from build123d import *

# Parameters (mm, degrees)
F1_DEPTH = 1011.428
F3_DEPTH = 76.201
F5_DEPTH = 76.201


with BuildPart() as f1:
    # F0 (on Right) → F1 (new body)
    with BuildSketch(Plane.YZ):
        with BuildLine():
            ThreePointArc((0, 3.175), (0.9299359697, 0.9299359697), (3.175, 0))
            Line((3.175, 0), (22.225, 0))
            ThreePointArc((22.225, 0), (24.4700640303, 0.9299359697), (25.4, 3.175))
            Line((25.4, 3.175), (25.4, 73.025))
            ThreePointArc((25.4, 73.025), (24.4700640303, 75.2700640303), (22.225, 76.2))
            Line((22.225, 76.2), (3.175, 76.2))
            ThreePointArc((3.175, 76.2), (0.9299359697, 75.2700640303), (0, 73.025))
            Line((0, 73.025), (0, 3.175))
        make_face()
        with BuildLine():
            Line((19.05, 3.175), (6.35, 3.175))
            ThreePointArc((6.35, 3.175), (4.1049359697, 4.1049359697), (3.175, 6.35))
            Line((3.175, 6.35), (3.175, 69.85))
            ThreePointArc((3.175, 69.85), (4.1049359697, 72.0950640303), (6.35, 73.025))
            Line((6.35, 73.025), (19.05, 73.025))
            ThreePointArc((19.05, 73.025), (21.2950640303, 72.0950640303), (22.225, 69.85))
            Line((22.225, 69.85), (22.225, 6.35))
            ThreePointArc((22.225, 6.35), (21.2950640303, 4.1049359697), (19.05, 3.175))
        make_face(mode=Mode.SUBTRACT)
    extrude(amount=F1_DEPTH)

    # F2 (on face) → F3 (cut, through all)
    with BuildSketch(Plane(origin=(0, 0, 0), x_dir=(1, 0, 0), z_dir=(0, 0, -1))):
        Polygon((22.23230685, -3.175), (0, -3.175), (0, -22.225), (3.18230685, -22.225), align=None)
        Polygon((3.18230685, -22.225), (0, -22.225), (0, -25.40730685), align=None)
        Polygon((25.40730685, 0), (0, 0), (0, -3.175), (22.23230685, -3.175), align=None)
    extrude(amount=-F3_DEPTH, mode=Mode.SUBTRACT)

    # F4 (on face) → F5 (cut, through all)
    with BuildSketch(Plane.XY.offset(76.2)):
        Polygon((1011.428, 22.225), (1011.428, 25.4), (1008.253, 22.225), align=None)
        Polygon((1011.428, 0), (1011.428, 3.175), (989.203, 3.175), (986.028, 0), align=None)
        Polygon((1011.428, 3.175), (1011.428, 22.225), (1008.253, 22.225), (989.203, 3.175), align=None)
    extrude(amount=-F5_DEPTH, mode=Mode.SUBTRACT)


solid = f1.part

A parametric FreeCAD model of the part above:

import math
import FreeCAD as App
import Part
import Sketcher
from FreeCAD import Vector
Q = App.Units.Quantity

doc = App.newDocument("Part")
body = doc.addObject("PartDesign::Body", "Body")

sketch1 = body.newObject("Sketcher::SketchObject", "Sketch")
sketch1.AttachmentSupport = (doc.getObject("YZ_Plane"), [""])
sketch1.MapMode = "FlatFace"
sketch1.addGeometry(Part.ArcOfCircle(Part.Circle(Vector(3.2, 3.2, 0), Vector(0, 0, 1), 3.2), math.radians(180), math.radians(270)), False)
sketch1.addGeometry(Part.LineSegment(Vector(3.2, 0, 0), Vector(22.2, 0, 0)), False)
sketch1.addGeometry(Part.ArcOfCircle(Part.Circle(Vector(22.2, 3.2, 0), Vector(0, 0, 1), 3.2), math.radians(-90), math.radians(0)), False)
sketch1.addGeometry(Part.LineSegment(Vector(25.4, 3.2, 0), Vector(25.4, 73, 0)), False)
sketch1.addGeometry(Part.ArcOfCircle(Part.Circle(Vector(22.2, 73, 0), Vector(0, 0, 1), 3.2), math.radians(0), math.radians(90)), False)
sketch1.addGeometry(Part.LineSegment(Vector(22.2, 76.2, 0), Vector(3.2, 76.2, 0)), False)
sketch1.addGeometry(Part.ArcOfCircle(Part.Circle(Vector(3.2, 73, 0), Vector(0, 0, 1), 3.2), math.radians(90), math.radians(180)), False)
sketch1.addGeometry(Part.LineSegment(Vector(0, 73, 0), Vector(0, 3.2, 0)), False)
sketch1.addGeometry(Part.ArcOfCircle(Part.Circle(Vector(19.1, 6.3, 0), Vector(0, 0, 1), 3.2), math.radians(-90), math.radians(0)), False)
sketch1.addGeometry(Part.LineSegment(Vector(19.1, 3.2, 0), Vector(6.3, 3.2, 0)), False)
sketch1.addGeometry(Part.ArcOfCircle(Part.Circle(Vector(6.3, 6.3, 0), Vector(0, 0, 1), 3.2), math.radians(180), math.radians(270)), False)
sketch1.addGeometry(Part.LineSegment(Vector(3.2, 6.3, 0), Vector(3.2, 69.8, 0)), False)
sketch1.addGeometry(Part.ArcOfCircle(Part.Circle(Vector(6.3, 69.8, 0), Vector(0, 0, 1), 3.2), math.radians(90), math.radians(180)), False)
sketch1.addGeometry(Part.LineSegment(Vector(6.3, 73, 0), Vector(19.1, 73, 0)), False)
sketch1.addGeometry(Part.ArcOfCircle(Part.Circle(Vector(19.1, 69.8, 0), Vector(0, 0, 1), 3.2), math.radians(0), math.radians(90)), False)
sketch1.addGeometry(Part.LineSegment(Vector(22.2, 69.8, 0), Vector(22.2, 6.3, 0)), False)
sketch1.addConstraint(Sketcher.Constraint("Tangent", 0, 2, 1, 1))
sketch1.addConstraint(Sketcher.Constraint("Tangent", 1, 2, 2, 1))
sketch1.addConstraint(Sketcher.Constraint("Tangent", 2, 2, 3, 1))
sketch1.addConstraint(Sketcher.Constraint("Tangent", 3, 2, 4, 1))
sketch1.addConstraint(Sketcher.Constraint("Tangent", 4, 2, 5, 1))
sketch1.addConstraint(Sketcher.Constraint("Tangent", 5, 2, 6, 1))
sketch1.addConstraint(Sketcher.Constraint("Tangent", 6, 2, 7, 1))
sketch1.addConstraint(Sketcher.Constraint("Tangent", 7, 2, 0, 1))
sketch1.addConstraint(Sketcher.Constraint("Tangent", 8, 1, 9, 1))
sketch1.addConstraint(Sketcher.Constraint("Tangent", 9, 2, 10, 2))
sketch1.addConstraint(Sketcher.Constraint("Tangent", 10, 1, 11, 1))
sketch1.addConstraint(Sketcher.Constraint("Tangent", 11, 2, 12, 2))
sketch1.addConstraint(Sketcher.Constraint("Tangent", 12, 1, 13, 1))
sketch1.addConstraint(Sketcher.Constraint("Tangent", 13, 2, 14, 2))
sketch1.addConstraint(Sketcher.Constraint("Tangent", 14, 1, 15, 1))
sketch1.addConstraint(Sketcher.Constraint("Tangent", 15, 2, 8, 2))
sketch1.addConstraint(Sketcher.Constraint("Horizontal", 1))
sketch1.addConstraint(Sketcher.Constraint("Vertical", 3))
sketch1.addConstraint(Sketcher.Constraint("Horizontal", 5))
sketch1.addConstraint(Sketcher.Constraint("Vertical", 7))
sketch1.addConstraint(Sketcher.Constraint("Horizontal", 9))
sketch1.addConstraint(Sketcher.Constraint("Vertical", 11))
sketch1.addConstraint(Sketcher.Constraint("Horizontal", 13))
sketch1.addConstraint(Sketcher.Constraint("Vertical", 15))
sketch1.addConstraint(Sketcher.Constraint("Equal", 0, 2))
sketch1.addConstraint(Sketcher.Constraint("Equal", 2, 4))
sketch1.addConstraint(Sketcher.Constraint("Equal", 4, 6))
sketch1.addConstraint(Sketcher.Constraint("Equal", 6, 8))
sketch1.addConstraint(Sketcher.Constraint("Equal", 8, 10))
sketch1.addConstraint(Sketcher.Constraint("Equal", 10, 12))
sketch1.addConstraint(Sketcher.Constraint("Equal", 12, 14))
sketch1.addConstraint(Sketcher.Constraint("PointOnObject", 0, 2, -1))
sketch1.addConstraint(Sketcher.Constraint("PointOnObject", 6, 2, -2))
sketch1.addConstraint(Sketcher.Constraint("Horizontal", 7, 2, 8, 1))
sketch1.addConstraint(Sketcher.Constraint("Horizontal", 6, 2, 12, 1))
sketch1.addConstraint(Sketcher.Constraint("Vertical", 5, 2, 10, 1))
sketch1.addConstraint(Sketcher.Constraint("Vertical", 4, 2, 14, 1))
sketch1.addConstraint(Sketcher.Constraint("DistanceX", 9, 2, 9, 1, Q("0.5 in")))
sketch1.addConstraint(Sketcher.Constraint("DistanceY", 11, 1, 11, 2, Q("2.5 in")))
sketch1.addConstraint(Sketcher.Constraint("DistanceX", -1, 1, 2, 2, Q("1 in")))
pad1 = body.newObject("PartDesign::Pad", "Pad")
pad1.Profile = sketch1
pad1.Length = Q("39.82 in")

sketch2 = body.newObject("Sketcher::SketchObject", "Sketch001")
sketch2.AttachmentSupport = (doc.getObject("XY_Plane"), [""])
sketch2.MapMode = "FlatFace"
sketch2.addGeometry(Part.LineSegment(Vector(0, 25, 0), Vector(25, 0, 0)), False)
sketch2.addGeometry(Part.LineSegment(Vector(25, 0, 0), Vector(0, 0, 0)), False)
sketch2.addGeometry(Part.LineSegment(Vector(0, 0, 0), Vector(0, 25, 0)), False)
sketch2.addConstraint(Sketcher.Constraint("Coincident", 0, 2, 1, 1))
sketch2.addConstraint(Sketcher.Constraint("Coincident", 1, 2, 2, 1))
sketch2.addConstraint(Sketcher.Constraint("Coincident", 2, 2, 0, 1))
sketch2.addConstraint(Sketcher.Constraint("Horizontal", 1))
sketch2.addConstraint(Sketcher.Constraint("Vertical", 2))
sketch2.addConstraint(Sketcher.Constraint("Coincident", 1, 2, -1, 1))
sketch2.addConstraint(Sketcher.Constraint("Equal", 1, 2))
sketch2.addConstraint(Sketcher.Constraint("DistanceX", 1, 2, 1, 1, 25.407307))
pocket1 = body.newObject("PartDesign::Pocket", "Pocket")
pocket1.Profile = sketch2
pocket1.Type = "ThroughAll"
pocket1.Reversed = True

sketch3 = body.newObject("Sketcher::SketchObject", "Sketch002")
sketch3.AttachmentSupport = (doc.getObject("XY_Plane"), [""])
sketch3.MapMode = "FlatFace"
sketch3.AttachmentOffset = App.Placement(Vector(0, 0, 3 * 25.4), App.Rotation())
sketch3.addGeometry(Part.LineSegment(Vector(1011, 25, 0), Vector(986, 0, 0)), False)
sketch3.addGeometry(Part.LineSegment(Vector(986, 0, 0), Vector(1011, 0, 0)), False)
sketch3.addGeometry(Part.LineSegment(Vector(1011, 0, 0), Vector(1011, 25, 0)), False)
sketch3.addConstraint(Sketcher.Constraint("Coincident", 0, 2, 1, 1))
sketch3.addConstraint(Sketcher.Constraint("Coincident", 1, 2, 2, 1))
sketch3.addConstraint(Sketcher.Constraint("Coincident", 2, 2, 0, 1))
sketch3.addConstraint(Sketcher.Constraint("Horizontal", 1))
sketch3.addConstraint(Sketcher.Constraint("Vertical", 2))
sketch3.addConstraint(Sketcher.Constraint("PointOnObject", 0, 2, -1))
sketch3.addConstraint(Sketcher.Constraint("Equal", 1, 2))
sketch3.addConstraint(Sketcher.Constraint("DistanceX", 1, 1, 1, 2, Q("1 in")))
sketch3.addConstraint(Sketcher.Constraint("DistanceX", -1, 1, 0, 2, Q("38.82 in")))
pocket2 = body.newObject("PartDesign::Pocket", "Pocket001")
pocket2.Profile = sketch3
pocket2.Type = "ThroughAll"

doc.recompute()
